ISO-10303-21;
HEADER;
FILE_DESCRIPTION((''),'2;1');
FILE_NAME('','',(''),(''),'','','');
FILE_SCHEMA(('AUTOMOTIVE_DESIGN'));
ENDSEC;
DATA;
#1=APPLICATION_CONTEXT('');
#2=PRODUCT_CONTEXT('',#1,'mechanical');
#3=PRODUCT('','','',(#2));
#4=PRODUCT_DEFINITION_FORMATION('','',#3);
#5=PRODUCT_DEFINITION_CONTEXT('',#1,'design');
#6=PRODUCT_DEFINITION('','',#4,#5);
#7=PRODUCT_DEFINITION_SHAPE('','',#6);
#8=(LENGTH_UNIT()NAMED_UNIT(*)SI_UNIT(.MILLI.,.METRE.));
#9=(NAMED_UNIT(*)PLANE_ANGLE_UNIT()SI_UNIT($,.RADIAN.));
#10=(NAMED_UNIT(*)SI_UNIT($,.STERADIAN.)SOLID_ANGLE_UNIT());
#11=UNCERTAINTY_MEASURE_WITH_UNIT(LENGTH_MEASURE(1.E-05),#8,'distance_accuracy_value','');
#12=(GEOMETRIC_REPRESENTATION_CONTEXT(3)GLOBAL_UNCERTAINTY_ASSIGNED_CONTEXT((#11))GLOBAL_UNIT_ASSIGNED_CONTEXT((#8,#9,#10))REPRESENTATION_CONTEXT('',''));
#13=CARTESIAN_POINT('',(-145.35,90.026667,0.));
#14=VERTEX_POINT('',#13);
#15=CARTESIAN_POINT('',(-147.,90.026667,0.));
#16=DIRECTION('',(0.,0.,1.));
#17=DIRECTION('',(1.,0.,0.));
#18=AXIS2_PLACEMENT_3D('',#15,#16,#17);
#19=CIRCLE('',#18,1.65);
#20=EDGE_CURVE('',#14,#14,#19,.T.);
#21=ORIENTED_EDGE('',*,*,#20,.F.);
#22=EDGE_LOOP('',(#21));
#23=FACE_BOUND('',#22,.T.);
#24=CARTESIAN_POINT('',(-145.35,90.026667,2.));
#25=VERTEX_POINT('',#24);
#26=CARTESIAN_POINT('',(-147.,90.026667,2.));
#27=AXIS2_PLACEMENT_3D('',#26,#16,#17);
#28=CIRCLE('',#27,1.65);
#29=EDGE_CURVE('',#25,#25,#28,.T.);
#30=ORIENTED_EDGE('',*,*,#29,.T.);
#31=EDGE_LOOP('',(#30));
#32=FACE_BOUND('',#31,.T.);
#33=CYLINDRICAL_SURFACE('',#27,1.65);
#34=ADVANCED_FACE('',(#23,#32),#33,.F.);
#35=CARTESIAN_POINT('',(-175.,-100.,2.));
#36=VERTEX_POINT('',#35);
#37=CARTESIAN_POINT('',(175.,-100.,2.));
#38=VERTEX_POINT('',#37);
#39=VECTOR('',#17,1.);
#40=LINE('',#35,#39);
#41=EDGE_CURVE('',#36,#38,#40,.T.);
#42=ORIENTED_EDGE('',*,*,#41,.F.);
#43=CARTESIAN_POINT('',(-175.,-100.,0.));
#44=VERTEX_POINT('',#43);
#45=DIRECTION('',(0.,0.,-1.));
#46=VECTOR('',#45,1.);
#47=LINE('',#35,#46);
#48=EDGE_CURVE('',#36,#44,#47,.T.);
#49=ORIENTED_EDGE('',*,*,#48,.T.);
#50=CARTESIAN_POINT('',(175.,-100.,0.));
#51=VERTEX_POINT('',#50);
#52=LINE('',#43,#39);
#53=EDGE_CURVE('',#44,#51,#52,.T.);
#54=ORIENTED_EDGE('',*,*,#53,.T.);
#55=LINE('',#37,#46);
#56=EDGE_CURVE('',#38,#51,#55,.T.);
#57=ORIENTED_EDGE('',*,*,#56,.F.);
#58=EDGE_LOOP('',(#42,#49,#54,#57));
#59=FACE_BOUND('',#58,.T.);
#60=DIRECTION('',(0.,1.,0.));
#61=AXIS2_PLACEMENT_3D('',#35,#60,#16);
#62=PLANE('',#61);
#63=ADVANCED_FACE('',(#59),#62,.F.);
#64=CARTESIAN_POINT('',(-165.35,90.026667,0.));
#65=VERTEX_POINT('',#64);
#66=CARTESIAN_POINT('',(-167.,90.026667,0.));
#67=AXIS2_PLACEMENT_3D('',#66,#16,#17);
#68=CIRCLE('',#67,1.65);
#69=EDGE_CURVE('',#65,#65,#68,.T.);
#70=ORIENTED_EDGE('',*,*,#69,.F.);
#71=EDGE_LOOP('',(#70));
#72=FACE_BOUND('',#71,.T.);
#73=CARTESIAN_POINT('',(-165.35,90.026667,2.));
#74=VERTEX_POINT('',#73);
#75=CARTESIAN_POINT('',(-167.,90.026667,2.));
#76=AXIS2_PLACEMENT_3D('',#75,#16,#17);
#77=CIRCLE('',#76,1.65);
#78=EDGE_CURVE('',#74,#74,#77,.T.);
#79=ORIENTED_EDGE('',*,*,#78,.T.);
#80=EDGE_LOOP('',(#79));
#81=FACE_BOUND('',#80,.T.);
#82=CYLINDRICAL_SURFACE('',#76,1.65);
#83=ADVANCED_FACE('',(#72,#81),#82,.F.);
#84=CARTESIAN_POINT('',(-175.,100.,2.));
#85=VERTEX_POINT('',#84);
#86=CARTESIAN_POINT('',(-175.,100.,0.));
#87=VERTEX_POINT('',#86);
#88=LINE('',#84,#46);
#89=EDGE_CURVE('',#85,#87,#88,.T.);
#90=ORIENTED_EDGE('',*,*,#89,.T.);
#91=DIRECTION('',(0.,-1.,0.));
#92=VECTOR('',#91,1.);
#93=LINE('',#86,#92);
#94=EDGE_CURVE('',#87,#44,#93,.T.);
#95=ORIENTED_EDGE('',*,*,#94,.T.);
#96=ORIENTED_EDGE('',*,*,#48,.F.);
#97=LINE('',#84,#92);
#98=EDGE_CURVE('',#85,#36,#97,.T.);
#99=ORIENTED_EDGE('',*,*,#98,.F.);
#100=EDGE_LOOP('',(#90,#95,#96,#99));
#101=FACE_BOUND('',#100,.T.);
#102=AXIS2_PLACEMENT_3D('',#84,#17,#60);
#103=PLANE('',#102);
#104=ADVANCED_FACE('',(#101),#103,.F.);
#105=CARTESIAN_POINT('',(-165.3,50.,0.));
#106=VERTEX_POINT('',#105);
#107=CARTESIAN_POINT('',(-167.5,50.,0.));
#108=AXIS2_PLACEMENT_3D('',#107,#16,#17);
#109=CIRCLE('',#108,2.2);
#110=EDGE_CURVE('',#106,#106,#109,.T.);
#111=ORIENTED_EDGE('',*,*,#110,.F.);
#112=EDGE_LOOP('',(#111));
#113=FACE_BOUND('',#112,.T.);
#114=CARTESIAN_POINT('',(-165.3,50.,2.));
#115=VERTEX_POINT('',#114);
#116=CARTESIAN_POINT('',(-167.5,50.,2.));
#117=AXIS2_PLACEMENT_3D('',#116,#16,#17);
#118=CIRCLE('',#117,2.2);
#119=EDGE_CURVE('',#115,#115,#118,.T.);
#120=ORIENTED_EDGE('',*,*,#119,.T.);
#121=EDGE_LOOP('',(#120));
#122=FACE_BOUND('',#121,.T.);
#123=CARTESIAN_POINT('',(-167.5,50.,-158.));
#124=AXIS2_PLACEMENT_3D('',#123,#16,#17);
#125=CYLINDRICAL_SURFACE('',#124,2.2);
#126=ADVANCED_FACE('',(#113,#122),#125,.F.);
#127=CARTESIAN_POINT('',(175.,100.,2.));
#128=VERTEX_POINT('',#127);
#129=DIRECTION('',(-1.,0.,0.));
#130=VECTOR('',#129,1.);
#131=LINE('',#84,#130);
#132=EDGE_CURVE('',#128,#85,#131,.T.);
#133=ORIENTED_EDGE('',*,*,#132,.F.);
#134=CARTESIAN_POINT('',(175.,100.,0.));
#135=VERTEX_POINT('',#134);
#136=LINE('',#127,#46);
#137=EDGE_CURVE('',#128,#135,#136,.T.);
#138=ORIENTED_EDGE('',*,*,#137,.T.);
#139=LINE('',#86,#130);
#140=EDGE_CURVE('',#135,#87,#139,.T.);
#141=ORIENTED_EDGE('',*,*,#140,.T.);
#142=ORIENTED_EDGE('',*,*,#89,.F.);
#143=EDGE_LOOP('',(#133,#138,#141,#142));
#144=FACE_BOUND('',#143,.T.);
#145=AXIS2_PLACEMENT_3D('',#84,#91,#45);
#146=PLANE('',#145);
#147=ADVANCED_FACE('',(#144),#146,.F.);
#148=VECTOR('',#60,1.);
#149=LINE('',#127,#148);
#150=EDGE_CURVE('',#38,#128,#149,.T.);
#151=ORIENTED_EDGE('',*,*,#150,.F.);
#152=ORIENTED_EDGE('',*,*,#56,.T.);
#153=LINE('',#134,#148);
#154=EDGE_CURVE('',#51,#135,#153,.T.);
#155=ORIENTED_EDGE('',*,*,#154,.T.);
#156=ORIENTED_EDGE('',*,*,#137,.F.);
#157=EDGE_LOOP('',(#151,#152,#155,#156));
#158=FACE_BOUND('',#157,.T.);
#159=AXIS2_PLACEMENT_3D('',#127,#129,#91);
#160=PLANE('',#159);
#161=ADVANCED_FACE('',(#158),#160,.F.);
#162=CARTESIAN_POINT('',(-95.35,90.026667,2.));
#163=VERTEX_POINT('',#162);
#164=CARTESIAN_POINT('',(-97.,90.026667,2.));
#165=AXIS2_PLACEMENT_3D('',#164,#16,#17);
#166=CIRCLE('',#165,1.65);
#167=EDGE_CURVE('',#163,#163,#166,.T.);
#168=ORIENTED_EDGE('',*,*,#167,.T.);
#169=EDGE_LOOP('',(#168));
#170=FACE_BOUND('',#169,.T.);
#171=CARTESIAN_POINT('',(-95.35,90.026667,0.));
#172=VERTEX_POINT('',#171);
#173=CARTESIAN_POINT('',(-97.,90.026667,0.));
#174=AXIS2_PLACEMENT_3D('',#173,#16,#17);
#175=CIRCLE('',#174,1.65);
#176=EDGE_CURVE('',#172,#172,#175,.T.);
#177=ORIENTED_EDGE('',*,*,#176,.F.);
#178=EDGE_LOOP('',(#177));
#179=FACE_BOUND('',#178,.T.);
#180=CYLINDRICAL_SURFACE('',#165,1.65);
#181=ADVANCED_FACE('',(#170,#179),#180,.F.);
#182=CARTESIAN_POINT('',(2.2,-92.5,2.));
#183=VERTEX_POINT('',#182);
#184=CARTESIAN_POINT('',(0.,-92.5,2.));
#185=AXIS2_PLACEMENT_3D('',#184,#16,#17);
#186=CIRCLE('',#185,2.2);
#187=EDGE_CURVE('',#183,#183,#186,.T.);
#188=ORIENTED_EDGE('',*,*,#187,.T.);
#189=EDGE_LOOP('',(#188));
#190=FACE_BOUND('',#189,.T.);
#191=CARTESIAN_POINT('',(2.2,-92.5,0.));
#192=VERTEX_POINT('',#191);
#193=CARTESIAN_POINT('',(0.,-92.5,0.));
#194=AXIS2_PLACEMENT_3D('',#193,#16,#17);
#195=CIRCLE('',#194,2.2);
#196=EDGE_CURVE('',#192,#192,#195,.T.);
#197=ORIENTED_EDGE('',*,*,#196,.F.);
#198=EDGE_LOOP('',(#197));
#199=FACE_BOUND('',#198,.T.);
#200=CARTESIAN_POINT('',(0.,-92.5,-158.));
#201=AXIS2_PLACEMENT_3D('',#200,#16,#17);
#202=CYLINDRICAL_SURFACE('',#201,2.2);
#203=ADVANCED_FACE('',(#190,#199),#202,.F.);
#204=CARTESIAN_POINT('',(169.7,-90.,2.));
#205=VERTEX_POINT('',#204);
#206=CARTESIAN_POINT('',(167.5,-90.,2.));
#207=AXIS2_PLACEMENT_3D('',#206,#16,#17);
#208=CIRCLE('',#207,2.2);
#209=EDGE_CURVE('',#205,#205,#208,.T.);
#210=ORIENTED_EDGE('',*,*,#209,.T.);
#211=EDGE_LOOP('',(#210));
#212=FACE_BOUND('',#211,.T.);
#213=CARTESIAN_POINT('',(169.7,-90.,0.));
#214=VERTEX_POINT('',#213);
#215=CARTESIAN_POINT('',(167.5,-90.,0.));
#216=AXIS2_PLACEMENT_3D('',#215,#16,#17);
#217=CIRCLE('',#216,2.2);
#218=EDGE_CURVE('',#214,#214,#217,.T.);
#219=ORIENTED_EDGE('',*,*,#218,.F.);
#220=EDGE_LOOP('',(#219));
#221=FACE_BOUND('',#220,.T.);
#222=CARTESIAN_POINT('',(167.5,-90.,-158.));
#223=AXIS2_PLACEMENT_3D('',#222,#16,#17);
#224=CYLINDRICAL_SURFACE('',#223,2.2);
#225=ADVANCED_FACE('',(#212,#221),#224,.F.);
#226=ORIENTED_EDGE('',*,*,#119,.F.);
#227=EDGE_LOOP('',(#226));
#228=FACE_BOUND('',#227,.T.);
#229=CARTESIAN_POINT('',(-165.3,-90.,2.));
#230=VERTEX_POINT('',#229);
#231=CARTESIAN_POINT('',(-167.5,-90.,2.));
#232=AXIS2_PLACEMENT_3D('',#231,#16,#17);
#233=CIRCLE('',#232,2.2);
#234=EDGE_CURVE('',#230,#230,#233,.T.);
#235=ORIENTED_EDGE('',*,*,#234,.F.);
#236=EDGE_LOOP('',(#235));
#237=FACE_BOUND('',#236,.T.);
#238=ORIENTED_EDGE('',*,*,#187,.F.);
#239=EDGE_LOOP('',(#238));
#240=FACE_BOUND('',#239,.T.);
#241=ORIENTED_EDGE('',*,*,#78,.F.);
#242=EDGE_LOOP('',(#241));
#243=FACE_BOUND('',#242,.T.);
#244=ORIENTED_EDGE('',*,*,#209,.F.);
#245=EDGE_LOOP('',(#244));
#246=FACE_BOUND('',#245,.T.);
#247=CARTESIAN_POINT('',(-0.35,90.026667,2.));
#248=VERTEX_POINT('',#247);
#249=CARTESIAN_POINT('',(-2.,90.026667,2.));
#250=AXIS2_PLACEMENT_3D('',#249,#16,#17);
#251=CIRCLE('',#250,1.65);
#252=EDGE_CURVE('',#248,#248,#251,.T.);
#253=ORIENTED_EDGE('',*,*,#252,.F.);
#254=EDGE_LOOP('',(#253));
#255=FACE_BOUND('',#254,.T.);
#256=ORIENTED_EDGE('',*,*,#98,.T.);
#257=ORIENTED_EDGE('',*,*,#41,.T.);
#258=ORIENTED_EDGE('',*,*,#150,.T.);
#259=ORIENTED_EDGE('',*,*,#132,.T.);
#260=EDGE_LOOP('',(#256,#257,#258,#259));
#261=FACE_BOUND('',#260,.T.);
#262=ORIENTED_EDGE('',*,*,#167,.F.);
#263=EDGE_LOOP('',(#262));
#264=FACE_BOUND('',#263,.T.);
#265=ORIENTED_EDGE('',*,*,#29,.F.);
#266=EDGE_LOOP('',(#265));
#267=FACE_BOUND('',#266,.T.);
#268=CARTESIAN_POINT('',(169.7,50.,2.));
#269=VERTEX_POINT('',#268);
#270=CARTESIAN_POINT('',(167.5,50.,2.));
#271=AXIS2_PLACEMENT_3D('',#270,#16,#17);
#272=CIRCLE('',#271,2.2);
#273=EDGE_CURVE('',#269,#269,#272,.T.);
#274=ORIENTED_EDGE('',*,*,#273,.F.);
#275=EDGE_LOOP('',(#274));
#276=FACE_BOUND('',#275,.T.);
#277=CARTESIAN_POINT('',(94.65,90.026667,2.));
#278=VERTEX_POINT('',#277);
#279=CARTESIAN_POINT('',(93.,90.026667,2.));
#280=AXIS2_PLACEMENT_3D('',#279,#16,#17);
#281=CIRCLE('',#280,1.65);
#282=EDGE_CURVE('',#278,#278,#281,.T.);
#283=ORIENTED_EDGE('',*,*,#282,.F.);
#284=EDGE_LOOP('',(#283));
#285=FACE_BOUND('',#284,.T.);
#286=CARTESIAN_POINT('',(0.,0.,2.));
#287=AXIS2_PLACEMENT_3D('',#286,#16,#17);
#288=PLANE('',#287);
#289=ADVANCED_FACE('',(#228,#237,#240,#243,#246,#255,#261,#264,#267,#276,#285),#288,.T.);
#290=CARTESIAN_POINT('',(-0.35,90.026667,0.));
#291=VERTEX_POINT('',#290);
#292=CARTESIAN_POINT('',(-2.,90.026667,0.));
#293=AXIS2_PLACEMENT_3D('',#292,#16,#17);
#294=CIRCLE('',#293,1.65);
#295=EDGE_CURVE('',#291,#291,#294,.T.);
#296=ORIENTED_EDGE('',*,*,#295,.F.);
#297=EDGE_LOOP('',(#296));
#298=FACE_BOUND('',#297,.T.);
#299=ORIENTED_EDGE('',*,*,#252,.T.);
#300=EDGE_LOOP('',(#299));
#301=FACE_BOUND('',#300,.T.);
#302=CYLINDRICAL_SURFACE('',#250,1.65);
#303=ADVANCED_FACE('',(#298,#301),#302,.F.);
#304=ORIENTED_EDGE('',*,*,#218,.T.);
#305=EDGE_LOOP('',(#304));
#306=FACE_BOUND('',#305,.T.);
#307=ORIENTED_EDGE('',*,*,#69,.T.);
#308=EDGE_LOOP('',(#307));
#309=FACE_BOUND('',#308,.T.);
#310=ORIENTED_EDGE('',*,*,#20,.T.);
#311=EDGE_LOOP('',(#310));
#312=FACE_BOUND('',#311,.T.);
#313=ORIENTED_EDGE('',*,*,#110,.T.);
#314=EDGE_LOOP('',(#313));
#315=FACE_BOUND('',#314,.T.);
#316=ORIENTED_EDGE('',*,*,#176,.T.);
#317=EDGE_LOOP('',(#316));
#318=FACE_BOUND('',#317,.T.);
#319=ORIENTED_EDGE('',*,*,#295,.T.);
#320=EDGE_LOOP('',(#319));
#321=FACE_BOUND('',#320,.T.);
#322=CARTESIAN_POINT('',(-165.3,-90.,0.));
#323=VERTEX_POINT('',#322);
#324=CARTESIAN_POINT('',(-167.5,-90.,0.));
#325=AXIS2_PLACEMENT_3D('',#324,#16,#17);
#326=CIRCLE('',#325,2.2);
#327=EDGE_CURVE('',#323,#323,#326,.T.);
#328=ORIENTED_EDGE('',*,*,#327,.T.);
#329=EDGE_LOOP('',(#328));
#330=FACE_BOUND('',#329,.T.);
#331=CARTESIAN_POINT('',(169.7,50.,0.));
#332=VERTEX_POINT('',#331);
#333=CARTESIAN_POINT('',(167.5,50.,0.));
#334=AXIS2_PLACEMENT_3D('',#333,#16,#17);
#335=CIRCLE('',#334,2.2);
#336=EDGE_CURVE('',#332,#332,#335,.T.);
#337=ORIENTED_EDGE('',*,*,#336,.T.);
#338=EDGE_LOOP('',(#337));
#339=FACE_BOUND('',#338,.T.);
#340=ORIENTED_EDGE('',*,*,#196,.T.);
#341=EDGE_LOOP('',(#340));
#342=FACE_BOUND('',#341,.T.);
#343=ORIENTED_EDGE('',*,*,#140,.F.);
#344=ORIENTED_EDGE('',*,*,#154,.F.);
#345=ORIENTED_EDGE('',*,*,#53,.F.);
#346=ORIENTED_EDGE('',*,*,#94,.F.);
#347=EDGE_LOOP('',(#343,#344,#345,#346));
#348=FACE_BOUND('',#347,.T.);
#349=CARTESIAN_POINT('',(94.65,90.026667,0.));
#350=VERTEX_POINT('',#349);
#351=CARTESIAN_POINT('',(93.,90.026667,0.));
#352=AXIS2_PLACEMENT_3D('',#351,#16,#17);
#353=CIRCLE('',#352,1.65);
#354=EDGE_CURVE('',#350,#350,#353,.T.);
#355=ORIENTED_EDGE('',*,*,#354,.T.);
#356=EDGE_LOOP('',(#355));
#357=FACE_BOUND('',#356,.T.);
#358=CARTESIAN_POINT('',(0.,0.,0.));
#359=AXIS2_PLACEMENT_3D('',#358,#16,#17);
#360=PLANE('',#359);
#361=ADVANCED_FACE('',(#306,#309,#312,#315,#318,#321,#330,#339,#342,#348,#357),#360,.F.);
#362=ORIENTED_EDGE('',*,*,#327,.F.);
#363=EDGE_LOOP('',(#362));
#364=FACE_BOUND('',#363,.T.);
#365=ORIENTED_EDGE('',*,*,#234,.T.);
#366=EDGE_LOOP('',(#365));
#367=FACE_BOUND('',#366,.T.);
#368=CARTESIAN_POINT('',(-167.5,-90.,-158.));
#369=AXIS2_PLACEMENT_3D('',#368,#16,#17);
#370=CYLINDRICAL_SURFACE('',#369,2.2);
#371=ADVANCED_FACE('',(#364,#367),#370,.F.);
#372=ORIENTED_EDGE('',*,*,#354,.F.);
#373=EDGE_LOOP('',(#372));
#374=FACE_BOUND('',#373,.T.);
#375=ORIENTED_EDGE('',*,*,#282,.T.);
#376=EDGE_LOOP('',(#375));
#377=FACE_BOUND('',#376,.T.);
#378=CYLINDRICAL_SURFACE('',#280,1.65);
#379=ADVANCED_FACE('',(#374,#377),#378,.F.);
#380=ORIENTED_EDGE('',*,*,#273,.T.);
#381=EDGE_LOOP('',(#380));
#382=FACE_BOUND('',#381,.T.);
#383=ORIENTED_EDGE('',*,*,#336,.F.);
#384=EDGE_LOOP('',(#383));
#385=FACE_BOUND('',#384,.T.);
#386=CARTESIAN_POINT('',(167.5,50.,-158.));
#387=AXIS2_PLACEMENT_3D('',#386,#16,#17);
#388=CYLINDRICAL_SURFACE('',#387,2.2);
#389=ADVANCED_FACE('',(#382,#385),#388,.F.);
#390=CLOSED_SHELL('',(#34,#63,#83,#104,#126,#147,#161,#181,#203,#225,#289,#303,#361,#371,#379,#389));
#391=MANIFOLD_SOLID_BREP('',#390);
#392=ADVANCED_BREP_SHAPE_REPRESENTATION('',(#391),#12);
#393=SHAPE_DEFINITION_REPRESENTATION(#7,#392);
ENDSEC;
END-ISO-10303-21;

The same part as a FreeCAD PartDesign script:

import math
import FreeCAD as App
import Part
import Sketcher
from FreeCAD import Vector
Q = App.Units.Quantity


def add_polygon(sketch, points):
    """Adds a closed chain of lines whose ends are joined by coincident constraints."""
    first, n = sketch.GeometryCount, len(points)
    for a, b in zip(points, points[1:] + points[:1]):
        sketch.addGeometry(Part.LineSegment(App.Vector(*a, 0), App.Vector(*b, 0)), False)
    for i in range(n):
        sketch.addConstraint(Sketcher.Constraint("Coincident", first + i, 2, first + (i + 1) % n, 1))

doc = App.newDocument("Part")
body = doc.addObject("PartDesign::Body", "Body")

sketch1 = body.newObject("Sketcher::SketchObject", "Sketch")
sketch1.AttachmentSupport = (doc.getObject("XY_Plane"), [""])
sketch1.MapMode = "FlatFace"
add_polygon(sketch1, [(-175, 100), (-175, -100), (175, -100), (175, 100)])
sketch1.addConstraint(Sketcher.Constraint("Vertical", 0))
sketch1.addConstraint(Sketcher.Constraint("Horizontal", 1))
sketch1.addConstraint(Sketcher.Constraint("Vertical", 2))
sketch1.addConstraint(Sketcher.Constraint("Horizontal", 3))
sketch1.addConstraint(Sketcher.Constraint("Symmetric", 0, 2, 2, 2, -1, 1))
sketch1.addConstraint(Sketcher.Constraint("DistanceX", 1, 1, 1, 2, Q("350 mm")))
sketch1.addConstraint(Sketcher.Constraint("DistanceY", 0, 2, 0, 1, Q("200 mm")))
pad1 = body.newObject("PartDesign::Pad", "Pad")
pad1.Profile = sketch1
pad1.Length = 2

sketch2 = body.newObject("Sketcher::SketchObject", "Sketch001")
sketch2.AttachmentSupport = (doc.getObject("XY_Plane"), [""])
sketch2.MapMode = "FlatFace"
sketch2.AttachmentOffset = App.Placement(Vector(0, 0, 2), App.Rotation())
sketch2.addGeometry(Part.Circle(Vector(-167.5, 50, 0), Vector(0, 0, 1), 2.2), False)
sketch2.addGeometry(Part.Circle(Vector(-167.5, -90, 0), Vector(0, 0, 1), 2.2), False)
sketch2.addGeometry(Part.Circle(Vector(167.5, -90, 0), Vector(0, 0, 1), 2.2), False)
sketch2.addGeometry(Part.Circle(Vector(167.5, 50, 0), Vector(0, 0, 1), 2.2), False)
sketch2.addConstraint(Sketcher.Constraint("Equal", 0, 1))
sketch2.addConstraint(Sketcher.Constraint("Equal", 1, 2))
sketch2.addConstraint(Sketcher.Constraint("Equal", 2, 3))
sketch2.addConstraint(Sketcher.Constraint("Symmetric", 1, 3, 2, 3, -2))
sketch2.addConstraint(Sketcher.Constraint("Symmetric", 0, 3, 3, 3, -2))
sketch2.addConstraint(Sketcher.Constraint("Vertical", 0, 3, 1, 3))
sketch2.addConstraint(Sketcher.Constraint("Diameter", 0, Q("4.4 mm")))
sketch2.addConstraint(Sketcher.Constraint("DistanceY", -1, 1, 0, 3, Q("50 mm")))
sketch2.addConstraint(Sketcher.Constraint("DistanceY", 1, 3, -1, 1, Q("90 mm")))
sketch2.addConstraint(Sketcher.Constraint("DistanceX", 1, 3, 2, 3, Q("335 mm")))
pocket1 = body.newObject("PartDesign::Pocket", "Pocket")
pocket1.Profile = sketch2
pocket1.Length = 160

sketch3 = body.newObject("Sketcher::SketchObject", "Sketch002")
sketch3.AttachmentSupport = (doc.getObject("XY_Plane"), [""])
sketch3.MapMode = "FlatFace"
sketch3.AttachmentOffset = App.Placement(Vector(0, 0, 2), App.Rotation())
sketch3.addGeometry(Part.ArcOfCircle(Part.Circle(Vector(0, -92.5, 0), Vector(0, 0, 1), 2.2), math.radians(0), math.radians(90)), False)
sketch3.addGeometry(Part.ArcOfCircle(Part.Circle(Vector(0, -92.5, 0), Vector(0, 0, 1), 2.2), math.radians(90), math.radians(180)), False)
sketch3.addGeometry(Part.ArcOfCircle(Part.Circle(Vector(0, -92.5, 0), Vector(0, 0, 1), 2.2), math.radians(180), math.radians(360)), False)
sketch3.addConstraint(Sketcher.Constraint("Tangent", 0, 2, 1, 1))
sketch3.addConstraint(Sketcher.Constraint("Tangent", 1, 2, 2, 1))
sketch3.addConstraint(Sketcher.Constraint("Tangent", 2, 2, 0, 1))
sketch3.addConstraint(Sketcher.Constraint("Symmetric", 1, 2, 2, 2, -2))
sketch3.addConstraint(Sketcher.Constraint("PointOnObject", 0, 2, -2))
sketch3.addConstraint(Sketcher.Constraint("Horizontal", 2, 3, 1, 2))
sketch3.addConstraint(Sketcher.Constraint("Radius", 0, Q("2.2 mm")))
sketch3.addConstraint(Sketcher.Constraint("DistanceY", 0, 3, -1, 1, Q("92.5 mm")))
pocket2 = body.newObject("PartDesign::Pocket", "Pocket001")
pocket2.Profile = sketch3
pocket2.Length = 160

sketch4 = body.newObject("Sketcher::SketchObject", "Sketch003")
sketch4.AttachmentSupport = (doc.getObject("XY_Plane"), [""])
sketch4.MapMode = "FlatFace"
sketch4.AttachmentOffset = App.Placement(Vector(0, 0, 2), App.Rotation())
sketch4.addGeometry(Part.Circle(Vector(-97, 90, 0), Vector(0, 0, 1), 1.1), False)
sketch4.addGeometry(Part.Circle(Vector(-2, 90, 0), Vector(0, 0, 1), 1.1), False)
sketch4.addGeometry(Part.Circle(Vector(93, 90, 0), Vector(0, 0, 1), 1.1), False)
sketch4.addConstraint(Sketcher.Constraint("Horizontal", 0, 3, 1, 3))
sketch4.addConstraint(Sketcher.Constraint("Horizontal", 1, 3, 2, 3))
sketch4.addConstraint(Sketcher.Constraint("DistanceX", 0, 3, -1, 1, Q("97 mm")))
sketch4.addConstraint(Sketcher.Constraint("DistanceX", 1, 3, -1, 1, Q("2 mm")))
sketch4.addConstraint(Sketcher.Constraint("DistanceX", -1, 1, 2, 3, Q("93 mm")))
sketch4.addConstraint(Sketcher.Constraint("Diameter", 2, Q("2.187302 mm")))
sketch4.addConstraint(Sketcher.Constraint("Diameter", 0, Q("2.184391 mm")))
sketch4.addConstraint(Sketcher.Constraint("Diameter", 1, Q("2.162323 mm")))
sketch4.addConstraint(Sketcher.Constraint("DistanceY", -1, 1, 0, 3, Q("90.026667 mm")))
pocket3 = body.newObject("PartDesign::Pocket", "Pocket002")
pocket3.Profile = sketch4
pocket3.Length = 10

sketch5 = body.newObject("Sketcher::SketchObject", "Sketch004")
sketch5.AttachmentSupport = (doc.getObject("XY_Plane"), [""])
sketch5.MapMode = "FlatFace"
sketch5.AttachmentOffset = App.Placement(Vector(0, 0, 2), App.Rotation())
sketch5.addGeometry(Part.Circle(Vector(93, 90, 0), Vector(0, 0, 1), 1.6), False)
sketch5.addGeometry(Part.Circle(Vector(-2, 90, 0), Vector(0, 0, 1), 1.6), False)
sketch5.addGeometry(Part.Circle(Vector(-97, 90, 0), Vector(0, 0, 1), 1.6), False)
sketch5.addConstraint(Sketcher.Constraint("Equal", 0, 1))
sketch5.addConstraint(Sketcher.Constraint("Equal", 1, 2))
sketch5.addConstraint(Sketcher.Constraint("Horizontal", 0, 3, 1, 3))
sketch5.addConstraint(Sketcher.Constraint("Horizontal", 1, 3, 2, 3))
sketch5.addConstraint(Sketcher.Constraint("Diameter", 0, Q("3.3 mm")))
sketch5.addConstraint(Sketcher.Constraint("DistanceX", -1, 1, 0, 3, Q("93 mm")))
sketch5.addConstraint(Sketcher.Constraint("DistanceX", 1, 3, -1, 1, Q("2 mm")))
sketch5.addConstraint(Sketcher.Constraint("DistanceX", 2, 3, -1, 1, Q("97 mm")))
sketch5.addConstraint(Sketcher.Constraint("DistanceY", -1, 1, 0, 3, Q("90.026667 mm")))
doc.recompute()
hole = body.newObject("PartDesign::Hole", "Hole")
hole.Profile = sketch5
hole.ThreadType = "None"
hole.Diameter = 3.3
hole.DepthType = "ThroughAll"

sketch6 = body.newObject("Sketcher::SketchObject", "Sketch005")
sketch6.AttachmentSupport = (doc.getObject("XY_Plane"), [""])
sketch6.MapMode = "FlatFace"
sketch6.AttachmentOffset = App.Placement(Vector(0, 0, 2), App.Rotation())
sketch6.addGeometry(Part.Circle(Vector(-147, 90, 0), Vector(0, 0, 1), 1.1), False)
sketch6.addGeometry(Part.Circle(Vector(-167, 90, 0), Vector(0, 0, 1), 0.6), False)
sketch6.addConstraint(Sketcher.Constraint("Horizontal", 0, 3, 1, 3))
sketch6.addConstraint(Sketcher.Constraint("DistanceX", 0, 3, -1, 1, Q("147 mm")))
sketch6.addConstraint(Sketcher.Constraint("DistanceX", 1, 3, -1, 1, Q("167 mm")))
sketch6.addConstraint(Sketcher.Constraint("Diameter", 0, Q("2.189581 mm")))
sketch6.addConstraint(Sketcher.Constraint("Diameter", 1, Q("1.29364 mm")))
sketch6.addConstraint(Sketcher.Constraint("DistanceY", -1, 1, 0, 3, Q("90.026667 mm")))
pocket4 = body.newObject("PartDesign::Pocket", "Pocket003")
pocket4.Profile = sketch6
pocket4.Length = 10

sketch7 = body.newObject("Sketcher::SketchObject", "Sketch006")
sketch7.AttachmentSupport = (doc.getObject("XY_Plane"), [""])
sketch7.MapMode = "FlatFace"
sketch7.AttachmentOffset = App.Placement(Vector(0, 0, 2), App.Rotation())
sketch7.addGeometry(Part.Circle(Vector(-147, 90, 0), Vector(0, 0, 1), 1.6), False)
sketch7.addGeometry(Part.Circle(Vector(-167, 90, 0), Vector(0, 0, 1), 1.6), False)
sketch7.addConstraint(Sketcher.Constraint("Equal", 0, 1))
sketch7.addConstraint(Sketcher.Constraint("Horizontal", 0, 3, 1, 3))
sketch7.addConstraint(Sketcher.Constraint("Diameter", 0, Q("3.3 mm")))
sketch7.addConstraint(Sketcher.Constraint("DistanceX", 0, 3, -1, 1, Q("147 mm")))
sketch7.addConstraint(Sketcher.Constraint("DistanceX", 1, 3, -1, 1, Q("167 mm")))
sketch7.addConstraint(Sketcher.Constraint("DistanceY", -1, 1, 0, 3, Q("90.026667 mm")))
doc.recompute()
hole2 = body.newObject("PartDesign::Hole", "Hole001")
hole2.Profile = sketch7
hole2.ThreadType = "None"
hole2.Diameter = 3.3
hole2.DepthType = "ThroughAll"

doc.recompute()
